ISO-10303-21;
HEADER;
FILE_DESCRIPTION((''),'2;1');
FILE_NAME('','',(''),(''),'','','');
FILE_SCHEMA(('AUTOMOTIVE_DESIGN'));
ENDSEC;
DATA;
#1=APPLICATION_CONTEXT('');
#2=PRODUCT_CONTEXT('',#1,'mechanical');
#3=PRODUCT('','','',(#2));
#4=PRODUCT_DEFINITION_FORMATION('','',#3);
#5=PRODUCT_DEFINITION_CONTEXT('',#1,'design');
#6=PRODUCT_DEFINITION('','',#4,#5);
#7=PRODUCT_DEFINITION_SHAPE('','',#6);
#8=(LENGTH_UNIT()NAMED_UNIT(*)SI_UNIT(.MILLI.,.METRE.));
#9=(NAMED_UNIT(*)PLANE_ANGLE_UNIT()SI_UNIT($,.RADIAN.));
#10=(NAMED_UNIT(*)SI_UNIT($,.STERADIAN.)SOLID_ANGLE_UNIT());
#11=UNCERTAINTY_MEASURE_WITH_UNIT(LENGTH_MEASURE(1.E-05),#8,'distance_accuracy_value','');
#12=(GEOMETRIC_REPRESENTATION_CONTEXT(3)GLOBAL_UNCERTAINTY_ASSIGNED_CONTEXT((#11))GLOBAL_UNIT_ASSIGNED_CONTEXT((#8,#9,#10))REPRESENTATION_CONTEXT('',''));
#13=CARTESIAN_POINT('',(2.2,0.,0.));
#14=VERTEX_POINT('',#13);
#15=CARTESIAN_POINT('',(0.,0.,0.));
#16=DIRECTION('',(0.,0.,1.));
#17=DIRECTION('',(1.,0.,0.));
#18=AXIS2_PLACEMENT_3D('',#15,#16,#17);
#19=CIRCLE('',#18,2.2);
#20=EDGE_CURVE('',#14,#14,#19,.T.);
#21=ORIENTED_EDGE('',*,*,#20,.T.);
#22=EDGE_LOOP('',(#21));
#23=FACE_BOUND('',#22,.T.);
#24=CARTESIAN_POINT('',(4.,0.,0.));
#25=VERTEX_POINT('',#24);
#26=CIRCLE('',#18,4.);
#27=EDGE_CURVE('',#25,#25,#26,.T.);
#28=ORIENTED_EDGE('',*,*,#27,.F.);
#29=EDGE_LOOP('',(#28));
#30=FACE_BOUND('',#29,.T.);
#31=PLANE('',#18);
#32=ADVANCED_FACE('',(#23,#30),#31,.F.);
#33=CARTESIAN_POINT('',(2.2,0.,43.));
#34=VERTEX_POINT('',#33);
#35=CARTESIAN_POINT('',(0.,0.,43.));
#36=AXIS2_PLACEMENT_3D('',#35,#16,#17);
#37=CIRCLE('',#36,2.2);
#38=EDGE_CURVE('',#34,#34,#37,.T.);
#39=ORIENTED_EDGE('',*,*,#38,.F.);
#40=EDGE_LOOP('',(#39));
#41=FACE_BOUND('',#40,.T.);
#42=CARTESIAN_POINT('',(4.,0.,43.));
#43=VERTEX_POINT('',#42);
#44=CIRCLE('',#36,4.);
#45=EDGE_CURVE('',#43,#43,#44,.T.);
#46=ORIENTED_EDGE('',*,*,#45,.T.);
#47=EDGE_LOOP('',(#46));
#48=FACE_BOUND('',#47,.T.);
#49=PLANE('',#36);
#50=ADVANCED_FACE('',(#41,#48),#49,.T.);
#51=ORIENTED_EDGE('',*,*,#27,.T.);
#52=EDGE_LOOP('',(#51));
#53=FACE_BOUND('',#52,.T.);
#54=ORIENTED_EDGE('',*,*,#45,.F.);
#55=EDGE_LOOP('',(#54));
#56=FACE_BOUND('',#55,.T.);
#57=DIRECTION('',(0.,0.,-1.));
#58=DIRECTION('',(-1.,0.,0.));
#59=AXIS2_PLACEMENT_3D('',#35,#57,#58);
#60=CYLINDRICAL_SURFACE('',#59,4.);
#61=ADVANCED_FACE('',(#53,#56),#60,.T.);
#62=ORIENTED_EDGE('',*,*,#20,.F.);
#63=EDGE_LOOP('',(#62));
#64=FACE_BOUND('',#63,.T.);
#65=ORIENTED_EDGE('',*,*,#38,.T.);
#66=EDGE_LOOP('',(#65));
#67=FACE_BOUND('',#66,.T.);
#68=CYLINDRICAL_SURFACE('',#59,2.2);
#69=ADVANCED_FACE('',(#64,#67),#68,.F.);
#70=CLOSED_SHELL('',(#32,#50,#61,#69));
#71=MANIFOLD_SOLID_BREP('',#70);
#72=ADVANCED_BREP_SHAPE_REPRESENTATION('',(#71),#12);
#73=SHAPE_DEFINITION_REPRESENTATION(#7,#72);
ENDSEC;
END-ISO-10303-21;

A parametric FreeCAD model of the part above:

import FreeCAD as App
import Part
import Sketcher
from FreeCAD import Vector

doc = App.newDocument("Part")
body = doc.addObject("PartDesign::Body", "Body")

sketch1 = doc.addObject("Sketcher::SketchObject", "Sketch")
body.addObject(sketch1)
sketch1.AttachmentSupport = (doc.XY_Plane, [""])
sketch1.MapMode = "FlatFace"
sketch1.addGeometry(Part.Circle(Vector(0, 0, 0), Vector(0, 0, 1), 4), False)
sketch1.addGeometry(Part.Circle(Vector(0, 0, 0), Vector(0, 0, 1), 2.2), False)
sketch1.addConstraint(Sketcher.Constraint("Coincident", 0, 3, -1, 1))
sketch1.addConstraint(Sketcher.Constraint("Coincident", 1, 3, -1, 1))
sketch1.addConstraint(Sketcher.Constraint("Diameter", 0, 8.0))
sketch1.addConstraint(Sketcher.Constraint("Diameter", 1, 4.4))
pad1 = doc.addObject("PartDesign::Pad", "Pad")
body.addObject(pad1)
pad1.Profile = sketch1
pad1.Length = 43

doc.recompute()
